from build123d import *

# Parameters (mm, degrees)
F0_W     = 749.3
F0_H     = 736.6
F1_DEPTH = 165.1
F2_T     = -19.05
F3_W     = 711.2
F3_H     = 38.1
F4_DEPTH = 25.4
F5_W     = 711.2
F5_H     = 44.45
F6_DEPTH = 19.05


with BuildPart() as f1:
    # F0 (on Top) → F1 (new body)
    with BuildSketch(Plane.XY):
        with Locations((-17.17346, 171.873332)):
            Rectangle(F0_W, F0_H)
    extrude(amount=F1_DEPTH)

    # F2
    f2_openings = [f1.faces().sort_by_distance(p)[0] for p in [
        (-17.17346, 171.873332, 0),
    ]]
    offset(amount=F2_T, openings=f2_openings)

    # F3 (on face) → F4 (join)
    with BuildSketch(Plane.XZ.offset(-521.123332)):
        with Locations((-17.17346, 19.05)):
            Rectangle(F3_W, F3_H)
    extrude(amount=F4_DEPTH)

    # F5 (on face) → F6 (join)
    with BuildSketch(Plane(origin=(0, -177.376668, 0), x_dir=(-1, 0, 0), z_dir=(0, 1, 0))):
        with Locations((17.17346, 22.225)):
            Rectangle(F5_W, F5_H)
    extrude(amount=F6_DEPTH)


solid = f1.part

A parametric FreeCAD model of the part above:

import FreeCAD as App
import Part
import Sketcher
from FreeCAD import Vector
Q = App.Units.Quantity


def faces_at(feature, points):
    """Names of the faces that lie closest to the given points."""
    faces = feature.Shape.Faces
    near = lambda p: min(range(len(faces)), key=lambda i: faces[i].distToShape(Part.Vertex(*p))[0])
    return sorted({f"Face{near(p) + 1}" for p in points})

doc = App.newDocument("Part")
body = doc.addObject("PartDesign::Body", "Body")

# Sketch on XY plane
sketch1 = body.newObject("Sketcher::SketchObject", "Sketch")
sketch1.AttachmentSupport = (doc.getObject("XY_Plane"), [""])
sketch1.MapMode = "FlatFace"
sketch1.addGeometry([
    Part.LineSegment(Vector(-391.82346, 540.173332, 0), Vector(-391.82346, -196.426668, 0)),
    Part.LineSegment(Vector(-391.82346, -196.426668, 0), Vector(357.47654, -196.426668, 0)),
    Part.LineSegment(Vector(357.47654, -196.426668, 0), Vector(357.47654, 540.173332, 0)),
    Part.LineSegment(Vector(357.47654, 540.173332, 0), Vector(-391.82346, 540.173332, 0)),
], False)
sketch1.addConstraint([
    Sketcher.Constraint("Coincident", 0, 2, 1, 1),
    Sketcher.Constraint("Coincident", 1, 2, 2, 1),
    Sketcher.Constraint("Coincident", 2, 2, 3, 1),
    Sketcher.Constraint("Coincident", 3, 2, 0, 1),
    Sketcher.Constraint("Vertical", 0),
    Sketcher.Constraint("Horizontal", 1),
    Sketcher.Constraint("Vertical", 2),
    Sketcher.Constraint("Horizontal", 3),
    Sketcher.Constraint("DistanceY", 0, 2, 0, 1, Q("29 in")),
    Sketcher.Constraint("DistanceX", 1, 1, 1, 2, Q("29.5 in")),
    Sketcher.Constraint("DistanceX", 0, 2, -1, 1, 391.82346),
    Sketcher.Constraint("DistanceY", 0, 2, -1, 1, 196.426668),
])
pad1 = body.newObject("PartDesign::Pad", "Pad")
pad1.Profile = sketch1
pad1.Length = Q("6.5 in")
doc.recompute()

thickness = body.newObject("PartDesign::Thickness", "Thickness")
thickness.Base = (pad1, faces_at(pad1, [(-17.173, 171.873, 0)]))
thickness.Value = Q("0.75 in")
thickness.Reversed = True
thickness.Join = "Arc"

# Sketch on XZ plane
sketch2 = body.newObject("Sketcher::SketchObject", "Sketch001")
sketch2.AttachmentSupport = (doc.getObject("XZ_Plane"), [""])
sketch2.MapMode = "FlatFace"
sketch2.AttachmentOffset = App.Placement(Vector(0, 0, -521.123332), App.Rotation())
sketch2.addGeometry([
    Part.LineSegment(Vector(-372.77346, 38.1, 0), Vector(-372.77346, 0, 0)),
    Part.LineSegment(Vector(-372.77346, 0, 0), Vector(338.42654, 0, 0)),
    Part.LineSegment(Vector(338.42654, 0, 0), Vector(338.42654, 38.1, 0)),
    Part.LineSegment(Vector(338.42654, 38.1, 0), Vector(-372.77346, 38.1, 0)),
], False)
sketch2.addConstraint([
    Sketcher.Constraint("Coincident", 0, 2, 1, 1),
    Sketcher.Constraint("Coincident", 1, 2, 2, 1),
    Sketcher.Constraint("Coincident", 2, 2, 3, 1),
    Sketcher.Constraint("Coincident", 3, 2, 0, 1),
    Sketcher.Constraint("Vertical", 0),
    Sketcher.Constraint("Horizontal", 1),
    Sketcher.Constraint("Vertical", 2),
    Sketcher.Constraint("Horizontal", 3),
    Sketcher.Constraint("PointOnObject", 0, 2, -1),
    Sketcher.Constraint("DistanceX", 1, 1, 1, 2, Q("28 in")),
    Sketcher.Constraint("DistanceY", 0, 2, 0, 1, Q("1.5 in")),
    Sketcher.Constraint("DistanceX", 0, 2, -1, 1, 372.77346),
])
pad2 = body.newObject("PartDesign::Pad", "Pad001")
pad2.Profile = sketch2
pad2.Length = Q("1 in")

# Sketch on XZ plane
sketch3 = body.newObject("Sketcher::SketchObject", "Sketch002")
sketch3.AttachmentSupport = (doc.getObject("XZ_Plane"), [""])
sketch3.MapMode = "FlatFace"
sketch3.AttachmentOffset = App.Placement(Vector(0, 0, 177.376668), App.Rotation())
sketch3.addGeometry([
    Part.LineSegment(Vector(338.42654, 44.45, 0), Vector(338.42654, 0, 0)),
    Part.LineSegment(Vector(338.42654, 0, 0), Vector(-372.77346, 0, 0)),
    Part.LineSegment(Vector(-372.77346, 0, 0), Vector(-372.77346, 44.45, 0)),
    Part.LineSegment(Vector(-372.77346, 44.45, 0), Vector(338.42654, 44.45, 0)),
], False)
sketch3.addConstraint([
    Sketcher.Constraint("Coincident", 0, 2, 1, 1),
    Sketcher.Constraint("Coincident", 1, 2, 2, 1),
    Sketcher.Constraint("Coincident", 2, 2, 3, 1),
    Sketcher.Constraint("Coincident", 3, 2, 0, 1),
    Sketcher.Constraint("Vertical", 0),
    Sketcher.Constraint("Horizontal", 1),
    Sketcher.Constraint("Vertical", 2),
    Sketcher.Constraint("Horizontal", 3),
    Sketcher.Constraint("PointOnObject", 0, 2, -1),
    Sketcher.Constraint("DistanceX", 1, 2, 1, 1, Q("28 in")),
    Sketcher.Constraint("DistanceY", 0, 2, 0, 1, Q("1.75 in")),
    Sketcher.Constraint("DistanceX", -1, 1, 0, 2, 338.42654),
])
pad3 = body.newObject("PartDesign::Pad", "Pad002")
pad3.Profile = sketch3
pad3.Length = Q("0.75 in")
pad3.Reversed = True

doc.recompute()
